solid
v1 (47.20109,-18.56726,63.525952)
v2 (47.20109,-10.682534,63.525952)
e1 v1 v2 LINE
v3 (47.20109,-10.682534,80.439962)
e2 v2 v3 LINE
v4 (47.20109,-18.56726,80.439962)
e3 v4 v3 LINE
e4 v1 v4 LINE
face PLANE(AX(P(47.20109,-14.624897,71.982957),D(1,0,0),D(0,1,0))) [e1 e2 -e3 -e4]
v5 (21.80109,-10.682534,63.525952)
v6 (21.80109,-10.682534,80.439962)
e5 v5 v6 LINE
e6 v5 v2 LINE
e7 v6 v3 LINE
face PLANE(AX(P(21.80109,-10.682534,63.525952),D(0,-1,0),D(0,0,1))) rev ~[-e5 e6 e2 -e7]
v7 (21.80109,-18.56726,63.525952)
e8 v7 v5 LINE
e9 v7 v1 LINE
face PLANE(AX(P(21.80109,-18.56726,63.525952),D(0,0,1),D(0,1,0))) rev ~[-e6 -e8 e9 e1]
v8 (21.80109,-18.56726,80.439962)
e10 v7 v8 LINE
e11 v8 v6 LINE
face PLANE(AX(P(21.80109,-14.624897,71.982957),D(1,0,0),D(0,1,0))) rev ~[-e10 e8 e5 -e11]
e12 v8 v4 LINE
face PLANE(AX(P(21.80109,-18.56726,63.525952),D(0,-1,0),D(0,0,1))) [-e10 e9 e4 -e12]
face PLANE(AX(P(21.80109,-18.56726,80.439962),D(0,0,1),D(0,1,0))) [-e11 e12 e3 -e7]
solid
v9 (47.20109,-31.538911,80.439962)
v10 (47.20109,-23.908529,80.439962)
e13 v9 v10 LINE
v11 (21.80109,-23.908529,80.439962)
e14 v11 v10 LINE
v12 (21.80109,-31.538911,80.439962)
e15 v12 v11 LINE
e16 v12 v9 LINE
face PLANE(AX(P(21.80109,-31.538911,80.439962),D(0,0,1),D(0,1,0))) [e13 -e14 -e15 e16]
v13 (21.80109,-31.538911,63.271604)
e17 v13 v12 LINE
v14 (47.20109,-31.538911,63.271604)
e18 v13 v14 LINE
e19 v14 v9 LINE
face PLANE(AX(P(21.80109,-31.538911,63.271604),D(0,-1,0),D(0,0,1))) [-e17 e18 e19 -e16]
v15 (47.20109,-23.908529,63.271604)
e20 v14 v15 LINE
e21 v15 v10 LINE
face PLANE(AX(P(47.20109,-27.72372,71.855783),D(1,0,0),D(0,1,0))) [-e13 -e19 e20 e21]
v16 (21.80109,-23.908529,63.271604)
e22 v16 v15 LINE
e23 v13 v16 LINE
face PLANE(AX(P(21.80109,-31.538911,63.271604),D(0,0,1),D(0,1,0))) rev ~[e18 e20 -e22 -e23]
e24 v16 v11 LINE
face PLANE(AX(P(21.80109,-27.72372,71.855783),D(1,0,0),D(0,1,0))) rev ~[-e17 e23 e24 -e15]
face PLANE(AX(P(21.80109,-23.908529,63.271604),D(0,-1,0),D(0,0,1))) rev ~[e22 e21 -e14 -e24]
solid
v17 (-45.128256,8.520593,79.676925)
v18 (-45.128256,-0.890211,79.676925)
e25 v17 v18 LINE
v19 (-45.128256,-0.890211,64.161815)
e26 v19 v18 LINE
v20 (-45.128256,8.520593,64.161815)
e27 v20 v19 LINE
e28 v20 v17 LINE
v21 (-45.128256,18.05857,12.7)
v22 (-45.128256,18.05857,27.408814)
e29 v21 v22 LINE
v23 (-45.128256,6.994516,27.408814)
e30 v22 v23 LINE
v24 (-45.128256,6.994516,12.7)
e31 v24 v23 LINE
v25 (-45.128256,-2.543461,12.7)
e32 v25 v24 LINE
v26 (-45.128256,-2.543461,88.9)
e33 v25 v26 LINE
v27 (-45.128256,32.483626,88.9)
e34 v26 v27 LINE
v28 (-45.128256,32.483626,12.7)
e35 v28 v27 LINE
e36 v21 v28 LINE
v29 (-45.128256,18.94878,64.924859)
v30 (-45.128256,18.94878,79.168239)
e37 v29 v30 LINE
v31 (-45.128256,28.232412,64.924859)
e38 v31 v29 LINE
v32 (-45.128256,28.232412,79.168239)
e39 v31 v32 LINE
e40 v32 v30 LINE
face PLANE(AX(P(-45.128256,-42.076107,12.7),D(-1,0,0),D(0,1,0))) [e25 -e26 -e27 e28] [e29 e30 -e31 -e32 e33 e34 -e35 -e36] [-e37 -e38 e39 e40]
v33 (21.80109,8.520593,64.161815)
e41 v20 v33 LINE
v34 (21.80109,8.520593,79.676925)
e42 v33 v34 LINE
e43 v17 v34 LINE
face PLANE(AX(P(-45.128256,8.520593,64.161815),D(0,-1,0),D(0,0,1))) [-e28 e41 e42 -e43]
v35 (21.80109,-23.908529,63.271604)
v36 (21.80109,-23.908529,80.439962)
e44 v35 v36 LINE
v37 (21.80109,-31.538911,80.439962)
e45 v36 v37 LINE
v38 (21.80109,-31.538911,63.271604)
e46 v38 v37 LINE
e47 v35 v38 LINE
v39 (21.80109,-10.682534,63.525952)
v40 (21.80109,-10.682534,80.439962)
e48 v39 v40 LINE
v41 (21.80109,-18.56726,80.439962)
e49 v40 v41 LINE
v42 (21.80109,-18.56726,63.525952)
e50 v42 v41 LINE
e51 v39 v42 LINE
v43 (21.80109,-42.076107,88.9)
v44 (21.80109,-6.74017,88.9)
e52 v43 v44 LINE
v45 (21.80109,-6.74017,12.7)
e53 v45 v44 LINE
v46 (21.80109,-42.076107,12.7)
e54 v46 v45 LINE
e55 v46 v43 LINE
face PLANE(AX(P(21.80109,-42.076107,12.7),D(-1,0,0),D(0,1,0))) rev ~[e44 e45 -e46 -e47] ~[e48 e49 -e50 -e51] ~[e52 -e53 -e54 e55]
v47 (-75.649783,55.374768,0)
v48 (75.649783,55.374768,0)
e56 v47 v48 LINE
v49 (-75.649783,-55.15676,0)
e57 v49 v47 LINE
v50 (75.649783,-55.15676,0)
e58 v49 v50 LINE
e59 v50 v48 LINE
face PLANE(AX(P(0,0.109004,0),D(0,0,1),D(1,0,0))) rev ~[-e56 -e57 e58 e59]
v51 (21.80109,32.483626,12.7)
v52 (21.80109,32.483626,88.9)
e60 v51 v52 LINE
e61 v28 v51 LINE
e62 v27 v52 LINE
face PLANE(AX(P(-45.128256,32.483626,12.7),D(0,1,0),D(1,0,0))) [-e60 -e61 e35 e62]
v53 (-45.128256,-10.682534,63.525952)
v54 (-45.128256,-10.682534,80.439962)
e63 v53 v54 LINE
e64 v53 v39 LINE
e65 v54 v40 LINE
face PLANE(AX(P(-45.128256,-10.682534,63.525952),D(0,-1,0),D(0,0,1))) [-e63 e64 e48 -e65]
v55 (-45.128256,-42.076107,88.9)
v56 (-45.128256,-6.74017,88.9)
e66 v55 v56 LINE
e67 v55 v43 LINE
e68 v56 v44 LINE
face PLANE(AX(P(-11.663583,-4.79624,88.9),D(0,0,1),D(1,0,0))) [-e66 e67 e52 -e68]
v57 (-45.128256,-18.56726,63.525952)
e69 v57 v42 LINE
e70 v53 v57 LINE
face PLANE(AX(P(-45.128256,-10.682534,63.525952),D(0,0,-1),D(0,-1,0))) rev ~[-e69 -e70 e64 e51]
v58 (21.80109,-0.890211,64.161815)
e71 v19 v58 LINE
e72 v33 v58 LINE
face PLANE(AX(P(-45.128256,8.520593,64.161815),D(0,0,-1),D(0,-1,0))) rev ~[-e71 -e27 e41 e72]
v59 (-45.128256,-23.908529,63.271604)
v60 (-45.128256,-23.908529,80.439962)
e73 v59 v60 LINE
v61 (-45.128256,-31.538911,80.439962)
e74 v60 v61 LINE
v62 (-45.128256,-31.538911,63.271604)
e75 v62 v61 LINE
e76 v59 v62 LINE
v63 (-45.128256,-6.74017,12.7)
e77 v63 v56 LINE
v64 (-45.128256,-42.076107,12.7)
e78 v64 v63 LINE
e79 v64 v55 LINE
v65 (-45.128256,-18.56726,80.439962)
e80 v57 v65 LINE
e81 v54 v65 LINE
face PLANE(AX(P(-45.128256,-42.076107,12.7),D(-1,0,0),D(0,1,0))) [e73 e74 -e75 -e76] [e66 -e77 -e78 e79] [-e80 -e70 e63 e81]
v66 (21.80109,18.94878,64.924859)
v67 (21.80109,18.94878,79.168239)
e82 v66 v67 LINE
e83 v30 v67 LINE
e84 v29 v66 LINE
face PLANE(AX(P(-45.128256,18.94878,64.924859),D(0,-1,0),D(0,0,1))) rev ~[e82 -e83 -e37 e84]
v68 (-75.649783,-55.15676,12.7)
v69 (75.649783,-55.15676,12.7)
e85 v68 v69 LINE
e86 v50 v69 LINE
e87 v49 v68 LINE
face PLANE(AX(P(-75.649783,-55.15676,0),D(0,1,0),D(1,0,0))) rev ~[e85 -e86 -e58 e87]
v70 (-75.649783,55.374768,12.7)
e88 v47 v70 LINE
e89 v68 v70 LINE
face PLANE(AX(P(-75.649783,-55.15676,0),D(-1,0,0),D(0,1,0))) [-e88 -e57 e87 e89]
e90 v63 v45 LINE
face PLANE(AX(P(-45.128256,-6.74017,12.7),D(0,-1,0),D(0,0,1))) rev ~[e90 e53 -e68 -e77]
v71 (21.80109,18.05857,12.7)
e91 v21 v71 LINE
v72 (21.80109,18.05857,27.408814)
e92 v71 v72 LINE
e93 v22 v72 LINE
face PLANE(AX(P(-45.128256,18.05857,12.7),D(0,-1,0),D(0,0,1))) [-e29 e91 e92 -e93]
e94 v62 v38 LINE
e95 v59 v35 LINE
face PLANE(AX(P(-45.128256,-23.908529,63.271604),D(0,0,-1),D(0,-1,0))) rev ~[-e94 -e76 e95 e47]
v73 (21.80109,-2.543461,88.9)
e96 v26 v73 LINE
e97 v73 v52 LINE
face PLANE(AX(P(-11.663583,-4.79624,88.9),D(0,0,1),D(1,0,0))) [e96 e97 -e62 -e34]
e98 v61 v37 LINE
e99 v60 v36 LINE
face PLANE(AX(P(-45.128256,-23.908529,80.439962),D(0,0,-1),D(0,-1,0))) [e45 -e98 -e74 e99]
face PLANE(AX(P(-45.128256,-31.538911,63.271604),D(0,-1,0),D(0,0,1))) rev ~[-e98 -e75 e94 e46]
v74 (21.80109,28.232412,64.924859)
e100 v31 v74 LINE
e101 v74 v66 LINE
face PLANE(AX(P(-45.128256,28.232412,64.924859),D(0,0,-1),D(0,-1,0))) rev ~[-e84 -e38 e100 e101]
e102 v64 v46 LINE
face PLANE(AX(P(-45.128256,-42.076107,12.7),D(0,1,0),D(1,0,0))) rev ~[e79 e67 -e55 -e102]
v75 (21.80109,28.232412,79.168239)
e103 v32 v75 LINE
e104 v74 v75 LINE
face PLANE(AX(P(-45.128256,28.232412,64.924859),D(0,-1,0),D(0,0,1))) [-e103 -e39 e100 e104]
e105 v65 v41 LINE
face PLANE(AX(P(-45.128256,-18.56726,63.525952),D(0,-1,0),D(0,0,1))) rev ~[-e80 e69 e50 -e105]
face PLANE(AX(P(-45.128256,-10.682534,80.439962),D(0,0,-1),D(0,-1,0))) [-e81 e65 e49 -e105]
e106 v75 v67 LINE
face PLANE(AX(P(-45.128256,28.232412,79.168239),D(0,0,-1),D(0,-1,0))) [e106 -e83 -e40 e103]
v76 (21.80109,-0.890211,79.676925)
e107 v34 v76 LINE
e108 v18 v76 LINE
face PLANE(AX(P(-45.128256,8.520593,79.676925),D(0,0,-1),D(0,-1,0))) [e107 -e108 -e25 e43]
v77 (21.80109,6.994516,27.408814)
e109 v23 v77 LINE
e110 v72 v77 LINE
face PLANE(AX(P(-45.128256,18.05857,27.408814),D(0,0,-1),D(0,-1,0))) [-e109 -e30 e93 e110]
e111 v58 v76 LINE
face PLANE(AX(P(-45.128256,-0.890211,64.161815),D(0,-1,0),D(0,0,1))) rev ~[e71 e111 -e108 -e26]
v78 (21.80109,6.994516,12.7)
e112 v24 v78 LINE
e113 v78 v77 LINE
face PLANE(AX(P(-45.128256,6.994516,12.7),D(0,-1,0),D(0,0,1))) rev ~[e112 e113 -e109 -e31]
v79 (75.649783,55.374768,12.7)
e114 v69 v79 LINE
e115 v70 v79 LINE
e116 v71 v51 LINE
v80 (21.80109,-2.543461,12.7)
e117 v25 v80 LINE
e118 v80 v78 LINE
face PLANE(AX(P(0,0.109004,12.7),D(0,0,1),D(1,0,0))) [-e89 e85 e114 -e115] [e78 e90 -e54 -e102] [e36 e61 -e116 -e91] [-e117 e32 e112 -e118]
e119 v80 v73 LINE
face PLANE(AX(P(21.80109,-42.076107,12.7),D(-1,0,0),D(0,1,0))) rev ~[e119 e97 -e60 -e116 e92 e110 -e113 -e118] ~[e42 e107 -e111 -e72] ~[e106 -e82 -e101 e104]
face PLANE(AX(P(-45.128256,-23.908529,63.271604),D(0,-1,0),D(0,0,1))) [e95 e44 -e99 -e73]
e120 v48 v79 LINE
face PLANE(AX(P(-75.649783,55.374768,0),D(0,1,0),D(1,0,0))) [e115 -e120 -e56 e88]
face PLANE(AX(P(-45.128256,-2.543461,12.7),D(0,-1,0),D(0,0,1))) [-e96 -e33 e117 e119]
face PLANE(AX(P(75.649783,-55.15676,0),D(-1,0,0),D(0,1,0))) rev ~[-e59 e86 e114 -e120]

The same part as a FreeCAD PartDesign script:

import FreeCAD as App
import Part
import Sketcher
Q = App.Units.Quantity

doc = App.newDocument("Part")
body = doc.addObject("PartDesign::Body", "Body")

sketch1 = body.newObject("Sketcher::SketchObject", "Sketch")
sketch1.AttachmentSupport = (doc.getObject("XY_Plane"), [""])
sketch1.MapMode = "FlatFace"
sketch1.addGeometry([
    Part.LineSegment(App.Vector(-76, 55, 0), App.Vector(-76, -55, 0)),
    Part.LineSegment(App.Vector(-76, -55, 0), App.Vector(76, -55, 0)),
    Part.LineSegment(App.Vector(76, -55, 0), App.Vector(76, 55, 0)),
    Part.LineSegment(App.Vector(76, 55, 0), App.Vector(-76, 55, 0)),
], False)
sketch1.addConstraint([
    Sketcher.Constraint("Coincident", 0, 2, 1, 1),
    Sketcher.Constraint("Coincident", 1, 2, 2, 1),
    Sketcher.Constraint("Coincident", 2, 2, 3, 1),
    Sketcher.Constraint("Coincident", 3, 2, 0, 1),
    Sketcher.Constraint("Vertical", 0),
    Sketcher.Constraint("Horizontal", 1),
    Sketcher.Constraint("Vertical", 2),
    Sketcher.Constraint("Horizontal", 3),
    Sketcher.Constraint("DistanceY", 0, 2, 0, 1, 110.531528),
    Sketcher.Constraint("DistanceX", 1, 1, 1, 2, 151.299566),
    Sketcher.Constraint("DistanceY", 0, 2, -1, 1, 55.15676),
    Sketcher.Constraint("DistanceX", 0, 2, -1, 1, 75.649783),
])
pad1 = body.newObject("PartDesign::Pad", "Pad")
pad1.Profile = sketch1
pad1.Length = Q("0.5 in")

sketch2 = body.newObject("Sketcher::SketchObject", "Sketch001")
sketch2.AttachmentSupport = (doc.getObject("XY_Plane"), [""])
sketch2.MapMode = "FlatFace"
sketch2.AttachmentOffset = App.Placement(App.Vector(0, 0, 0.5 * 25.4), App.Rotation())
sketch2.addGeometry([
    Part.LineSegment(App.Vector(-45, 32, 0), App.Vector(-45, -42, 0)),
    Part.LineSegment(App.Vector(-45, -42, 0), App.Vector(22, -42, 0)),
    Part.LineSegment(App.Vector(22, -42, 0), App.Vector(22, 32, 0)),
    Part.LineSegment(App.Vector(22, 32, 0), App.Vector(-45, 32, 0)),
], False)
sketch2.addConstraint([
    Sketcher.Constraint("Coincident", 0, 2, 1, 1),
    Sketcher.Constraint("Coincident", 1, 2, 2, 1),
    Sketcher.Constraint("Coincident", 2, 2, 3, 1),
    Sketcher.Constraint("Coincident", 3, 2, 0, 1),
    Sketcher.Constraint("Vertical", 0),
    Sketcher.Constraint("Horizontal", 1),
    Sketcher.Constraint("Vertical", 2),
    Sketcher.Constraint("Horizontal", 3),
    Sketcher.Constraint("DistanceX", 1, 1, 1, 2, 66.929346),
    Sketcher.Constraint("DistanceY", 0, 2, 0, 1, 74.559733),
    Sketcher.Constraint("DistanceX", -1, 1, 1, 2, 21.80109),
    Sketcher.Constraint("DistanceY", 0, 2, -1, 1, 42.076107),
])
pad2 = body.newObject("PartDesign::Pad", "Pad001")
pad2.Profile = sketch2
pad2.Length = Q("3 in")

sketch3 = body.newObject("Sketcher::SketchObject", "Sketch002")
sketch3.AttachmentSupport = (doc.getObject("YZ_Plane"), [""])
sketch3.MapMode = "FlatFace"
sketch3.AttachmentOffset = App.Placement(App.Vector(0, 0, -45.128256), App.Rotation())
sketch3.addGeometry([
    Part.LineSegment(App.Vector(18.1, 27.4, 0), App.Vector(18.1, 12.7, 0)),
    Part.LineSegment(App.Vector(18.1, 12.7, 0), App.Vector(7, 12.7, 0)),
    Part.LineSegment(App.Vector(7, 12.7, 0), App.Vector(7, 27.4, 0)),
    Part.LineSegment(App.Vector(7, 27.4, 0), App.Vector(18.1, 27.4, 0)),
    Part.LineSegment(App.Vector(28.2, 79.2, 0), App.Vector(28.2, 64.9, 0)),
    Part.LineSegment(App.Vector(28.2, 64.9, 0), App.Vector(18.9, 64.9, 0)),
    Part.LineSegment(App.Vector(18.9, 64.9, 0), App.Vector(18.9, 79.2, 0)),
    Part.LineSegment(App.Vector(18.9, 79.2, 0), App.Vector(28.2, 79.2, 0)),
    Part.LineSegment(App.Vector(8.5, 79.7, 0), App.Vector(8.5, 64.2, 0)),
    Part.LineSegment(App.Vector(8.5, 64.2, 0), App.Vector(-0.9, 64.2, 0)),
    Part.LineSegment(App.Vector(-0.9, 64.2, 0), App.Vector(-0.9, 79.7, 0)),
    Part.LineSegment(App.Vector(-0.9, 79.7, 0), App.Vector(8.5, 79.7, 0)),
    Part.LineSegment(App.Vector(-10.7, 80.4, 0), App.Vector(-10.7, 63.5, 0)),
    Part.LineSegment(App.Vector(-10.7, 63.5, 0), App.Vector(-18.6, 63.5, 0)),
    Part.LineSegment(App.Vector(-18.6, 63.5, 0), App.Vector(-18.6, 80.4, 0)),
    Part.LineSegment(App.Vector(-18.6, 80.4, 0), App.Vector(-10.7, 80.4, 0)),
    Part.LineSegment(App.Vector(-23.9, 80.4, 0), App.Vector(-23.9, 63.3, 0)),
    Part.LineSegment(App.Vector(-23.9, 63.3, 0), App.Vector(-31.5, 63.3, 0)),
    Part.LineSegment(App.Vector(-31.5, 63.3, 0), App.Vector(-31.5, 80.4, 0)),
    Part.LineSegment(App.Vector(-31.5, 80.4, 0), App.Vector(-23.9, 80.4, 0)),
    Part.LineSegment(App.Vector(-2.5, 88.9, 0), App.Vector(-2.5, 12.7, 0)),
    Part.LineSegment(App.Vector(-2.5, 12.7, 0), App.Vector(-6.7, 12.7, 0)),
    Part.LineSegment(App.Vector(-6.7, 12.7, 0), App.Vector(-6.7, 88.9, 0)),
    Part.LineSegment(App.Vector(-6.7, 88.9, 0), App.Vector(-2.5, 88.9, 0)),
], False)
sketch3.addConstraint([
    Sketcher.Constraint("Coincident", 0, 2, 1, 1),
    Sketcher.Constraint("Coincident", 1, 2, 2, 1),
    Sketcher.Constraint("Coincident", 2, 2, 3, 1),
    Sketcher.Constraint("Coincident", 3, 2, 0, 1),
    Sketcher.Constraint("Coincident", 4, 2, 5, 1),
    Sketcher.Constraint("Coincident", 5, 2, 6, 1),
    Sketcher.Constraint("Coincident", 6, 2, 7, 1),
    Sketcher.Constraint("Coincident", 7, 2, 4, 1),
    Sketcher.Constraint("Coincident", 8, 2, 9, 1),
    Sketcher.Constraint("Coincident", 9, 2, 10, 1),
    Sketcher.Constraint("Coincident", 10, 2, 11, 1),
    Sketcher.Constraint("Coincident", 11, 2, 8, 1),
    Sketcher.Constraint("Coincident", 12, 2, 13, 1),
    Sketcher.Constraint("Coincident", 13, 2, 14, 1),
    Sketcher.Constraint("Coincident", 14, 2, 15, 1),
    Sketcher.Constraint("Coincident", 15, 2, 12, 1),
    Sketcher.Constraint("Coincident", 16, 2, 17, 1),
    Sketcher.Constraint("Coincident", 17, 2, 18, 1),
    Sketcher.Constraint("Coincident", 18, 2, 19, 1),
    Sketcher.Constraint("Coincident", 19, 2, 16, 1),
    Sketcher.Constraint("Coincident", 20, 2, 21, 1),
    Sketcher.Constraint("Coincident", 21, 2, 22, 1),
    Sketcher.Constraint("Coincident", 22, 2, 23, 1),
    Sketcher.Constraint("Coincident", 23, 2, 20, 1),
    Sketcher.Constraint("Vertical", 0),
    Sketcher.Constraint("Horizontal", 1),
    Sketcher.Constraint("Vertical", 2),
    Sketcher.Constraint("Horizontal", 3),
    Sketcher.Constraint("Vertical", 4),
    Sketcher.Constraint("Horizontal", 5),
    Sketcher.Constraint("Vertical", 6),
    Sketcher.Constraint("Horizontal", 7),
    Sketcher.Constraint("Vertical", 8),
    Sketcher.Constraint("Horizontal", 9),
    Sketcher.Constraint("Vertical", 10),
    Sketcher.Constraint("Horizontal", 11),
    Sketcher.Constraint("Vertical", 12),
    Sketcher.Constraint("Horizontal", 13),
    Sketcher.Constraint("Vertical", 14),
    Sketcher.Constraint("Horizontal", 15),
    Sketcher.Constraint("Vertical", 16),
    Sketcher.Constraint("Horizontal", 17),
    Sketcher.Constraint("Vertical", 18),
    Sketcher.Constraint("Horizontal", 19),
    Sketcher.Constraint("Vertical", 20),
    Sketcher.Constraint("Horizontal", 21),
    Sketcher.Constraint("Vertical", 22),
    Sketcher.Constraint("Horizontal", 23),
    Sketcher.Constraint("Horizontal", 15, 2, 18, 2),
    Sketcher.Constraint("Horizontal", 1, 2, 20, 2),
    Sketcher.Constraint("DistanceY", 20, 2, 20, 1, Q("3 in")),
    Sketcher.Constraint("DistanceY", -1, 1, 0, 2, Q("0.5 in")),
    Sketcher.Constraint("DistanceX", 17, 2, 17, 1, 7.630382),
    Sketcher.Constraint("DistanceX", 21, 2, 21, 1, 4.196709),
    Sketcher.Constraint("DistanceY", 4, 2, 4, 1, 14.243379),
    Sketcher.Constraint("DistanceY", 8, 2, 8, 1, 15.515111),
    Sketcher.Constraint("DistanceY", 12, 2, 12, 1, 16.91401),
    Sketcher.Constraint("DistanceY", 2, 2, 8, 2, 36.753001),
    Sketcher.Constraint("DistanceX", 14, 2, 23, 2, 16.0238),
    Sketcher.Constraint("DistanceX", 1, 2, 1, 1, 11.064054),
    Sketcher.Constraint("DistanceX", 5, 2, 5, 1, 9.283632),
    Sketcher.Constraint("DistanceX", 9, 2, 9, 1, 9.410804),
    Sketcher.Constraint("DistanceX", 13, 2, 13, 1, 7.884726),
    Sketcher.Constraint("DistanceY", 0, 2, 0, 1, 14.708814),
    Sketcher.Constraint("DistanceY", 16, 2, 16, 1, 17.168358),
    Sketcher.Constraint("DistanceX", -1, 1, 0, 2, 18.05857),
    Sketcher.Constraint("DistanceX", -1, 1, 4, 2, 28.232412),
    Sketcher.Constraint("DistanceY", -1, 1, 4, 2, 64.924859),
    Sketcher.Constraint("DistanceX", 9, 2, -1, 1, 0.890211),
    Sketcher.Constraint("DistanceY", -1, 1, 12, 2, 63.525952),
    Sketcher.Constraint("DistanceX", 13, 2, -1, 1, 18.56726),
    Sketcher.Constraint("DistanceX", 16, 2, -1, 1, 23.908529),
])
pocket1 = body.newObject("PartDesign::Pocket", "Pocket")
pocket1.Profile = sketch3
pocket1.Length = Q("6 in")
pocket1.Reversed = True
body2 = doc.addObject("PartDesign::Body", "Body001")
body2.AllowCompound = True

sketch4 = body2.newObject("Sketcher::SketchObject", "Sketch003")
sketch4.AttachmentSupport = (doc.getObject("YZ_Plane001"), [""])
sketch4.MapMode = "FlatFace"
sketch4.AttachmentOffset = App.Placement(App.Vector(0, 0, 21.80109), App.Rotation())
sketch4.addGeometry([
    Part.LineSegment(App.Vector(-32, 80, 0), App.Vector(-32, 63, 0)),
    Part.LineSegment(App.Vector(-32, 63, 0), App.Vector(-24, 63, 0)),
    Part.LineSegment(App.Vector(-24, 63, 0), App.Vector(-24, 80, 0)),
    Part.LineSegment(App.Vector(-24, 80, 0), App.Vector(-32, 80, 0)),
    Part.LineSegment(App.Vector(-19, 80, 0), App.Vector(-19, 64, 0)),
    Part.LineSegment(App.Vector(-19, 64, 0), App.Vector(-11, 64, 0)),
    Part.LineSegment(App.Vector(-11, 64, 0), App.Vector(-11, 80, 0)),
    Part.LineSegment(App.Vector(-11, 80, 0), App.Vector(-19, 80, 0)),
], False)
sketch4.addConstraint([
    Sketcher.Constraint("Coincident", 0, 2, 1, 1),
    Sketcher.Constraint("Coincident", 1, 2, 2, 1),
    Sketcher.Constraint("Coincident", 2, 2, 3, 1),
    Sketcher.Constraint("Coincident", 3, 2, 0, 1),
    Sketcher.Constraint("Coincident", 4, 2, 5, 1),
    Sketcher.Constraint("Coincident", 5, 2, 6, 1),
    Sketcher.Constraint("Coincident", 6, 2, 7, 1),
    Sketcher.Constraint("Coincident", 7, 2, 4, 1),
    Sketcher.Constraint("Vertical", 0),
    Sketcher.Constraint("Horizontal", 1),
    Sketcher.Constraint("Vertical", 2),
    Sketcher.Constraint("Horizontal", 3),
    Sketcher.Constraint("Vertical", 4),
    Sketcher.Constraint("Horizontal", 5),
    Sketcher.Constraint("Vertical", 6),
    Sketcher.Constraint("Horizontal", 7),
    Sketcher.Constraint("Horizontal", 3, 2, 6, 2),
    Sketcher.Constraint("DistanceX", 1, 1, 1, 2, 7.630382),
    Sketcher.Constraint("DistanceY", 4, 2, 4, 1, 16.91401),
    Sketcher.Constraint("DistanceX", 5, 1, 5, 2, 7.884726),
    Sketcher.Constraint("DistanceY", 0, 2, 0, 1, 17.168358),
    Sketcher.Constraint("DistanceX", 0, 2, -1, 1, 31.538911),
    Sketcher.Constraint("DistanceY", -1, 1, 2, 2, 80.439962),
    Sketcher.Constraint("DistanceX", 4, 2, -1, 1, 18.56726),
])
pad3 = body2.newObject("PartDesign::Pad", "Pad002")
pad3.Profile = sketch4
pad3.Length = Q("1 in")

doc.recompute()
